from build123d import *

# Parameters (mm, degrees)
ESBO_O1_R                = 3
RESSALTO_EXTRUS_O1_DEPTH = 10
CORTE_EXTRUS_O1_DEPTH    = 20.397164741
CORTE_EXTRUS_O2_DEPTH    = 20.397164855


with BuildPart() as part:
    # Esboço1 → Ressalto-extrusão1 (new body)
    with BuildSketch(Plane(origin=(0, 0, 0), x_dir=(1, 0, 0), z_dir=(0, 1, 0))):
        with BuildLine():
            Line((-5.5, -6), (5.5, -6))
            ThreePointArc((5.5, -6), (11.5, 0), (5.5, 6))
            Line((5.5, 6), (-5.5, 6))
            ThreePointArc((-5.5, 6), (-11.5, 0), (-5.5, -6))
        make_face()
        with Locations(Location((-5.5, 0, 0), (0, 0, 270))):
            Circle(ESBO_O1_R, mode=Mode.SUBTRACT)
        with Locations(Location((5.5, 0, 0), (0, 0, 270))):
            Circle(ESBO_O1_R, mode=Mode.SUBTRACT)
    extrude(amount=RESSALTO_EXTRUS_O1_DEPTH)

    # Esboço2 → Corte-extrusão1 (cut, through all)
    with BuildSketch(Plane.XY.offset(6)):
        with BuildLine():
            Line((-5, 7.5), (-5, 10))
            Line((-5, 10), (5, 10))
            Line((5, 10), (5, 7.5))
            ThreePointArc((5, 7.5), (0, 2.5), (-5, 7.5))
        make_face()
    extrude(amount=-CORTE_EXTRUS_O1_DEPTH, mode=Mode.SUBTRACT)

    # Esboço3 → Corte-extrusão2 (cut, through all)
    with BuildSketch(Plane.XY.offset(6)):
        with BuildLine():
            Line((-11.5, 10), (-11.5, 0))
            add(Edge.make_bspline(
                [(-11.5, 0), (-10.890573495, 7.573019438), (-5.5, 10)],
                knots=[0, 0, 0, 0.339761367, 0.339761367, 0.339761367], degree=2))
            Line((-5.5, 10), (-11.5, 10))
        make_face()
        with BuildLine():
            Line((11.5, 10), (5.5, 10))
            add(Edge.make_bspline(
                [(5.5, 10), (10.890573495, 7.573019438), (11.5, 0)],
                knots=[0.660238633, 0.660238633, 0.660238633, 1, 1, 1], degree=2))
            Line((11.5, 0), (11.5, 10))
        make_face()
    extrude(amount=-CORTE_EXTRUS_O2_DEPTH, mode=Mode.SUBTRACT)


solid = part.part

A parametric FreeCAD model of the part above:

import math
import FreeCAD as App
import Part
import Sketcher
from FreeCAD import Vector

doc = App.newDocument("Part")
params = doc.addObject("Spreadsheet::Sheet", "Params")
for row, (alias, value) in enumerate([
    ("sketch1_diameter", "6 mm"),
    ("sketch1_radius", "6 mm"),
    ("sketch1_width", "11 mm"),
    ("pad1_length", "10 mm"),
    ("sketch2_radius", "5 mm"),
    ("sketch2_height", "2.5 mm"),
], start=1):
    params.set(f"A{row}", alias)
    params.set(f"B{row}", "=" + value)
    params.setAlias(f"B{row}", alias)

body = doc.addObject("PartDesign::Body", "Body")

sketch1 = body.newObject("Sketcher::SketchObject", "Sketch")
sketch1.AttachmentSupport = (doc.getObject("XZ_Plane"), [""])
sketch1.MapMode = "FlatFace"
sketch1.addGeometry(Part.LineSegment(Vector(-5.5, 6, 0), Vector(5.5, 6, 0)), False)
sketch1.addGeometry(Part.ArcOfCircle(Part.Circle(Vector(5.5, 0, 0), Vector(0, 0, 1), 6), math.radians(-90), math.radians(90)), False)
sketch1.addGeometry(Part.LineSegment(Vector(5.5, -6, 0), Vector(-5.5, -6, 0)), False)
sketch1.addGeometry(Part.ArcOfCircle(Part.Circle(Vector(-5.5, 0, 0), Vector(0, 0, 1), 6), math.radians(90), math.radians(270)), False)
sketch1.addGeometry(Part.Circle(Vector(-5.5, 0, 0), Vector(0, 0, 1), 3), False)
sketch1.addGeometry(Part.Circle(Vector(5.5, 0, 0), Vector(0, 0, 1), 3), False)
sketch1.addConstraint(Sketcher.Constraint("Tangent", 0, 2, 1, 2))
sketch1.addConstraint(Sketcher.Constraint("Tangent", 1, 1, 2, 1))
sketch1.addConstraint(Sketcher.Constraint("Tangent", 2, 2, 3, 2))
sketch1.addConstraint(Sketcher.Constraint("Tangent", 3, 1, 0, 1))
sketch1.addConstraint(Sketcher.Constraint("Horizontal", 0))
sketch1.addConstraint(Sketcher.Constraint("Horizontal", 2))
sketch1.addConstraint(Sketcher.Constraint("Coincident", 4, 3, 3, 3))
sketch1.addConstraint(Sketcher.Constraint("Coincident", 5, 3, 1, 3))
sketch1.addConstraint(Sketcher.Constraint("Equal", 4, 5))
sketch1.addConstraint(Sketcher.Constraint("Symmetric", 1, 3, 3, 3, -1, 1))
sketch1.addConstraint(Sketcher.Constraint("Diameter", 4, 6.0))
sketch1.addConstraint(Sketcher.Constraint("Radius", 1, 6.0))
sketch1.addConstraint(Sketcher.Constraint("DistanceX", 0, 1, 0, 2, 11.0))
sketch1.setExpression("Constraints[10]", "Params.sketch1_diameter")
sketch1.setExpression("Constraints[11]", "Params.sketch1_radius")
sketch1.setExpression("Constraints[12]", "Params.sketch1_width")
pad1 = body.newObject("PartDesign::Pad", "Pad")
pad1.Profile = sketch1
pad1.setExpression("Length", "Params.pad1_length")
pad1.Reversed = True

sketch2 = body.newObject("Sketcher::SketchObject", "Sketch001")
sketch2.AttachmentSupport = (doc.getObject("XY_Plane"), [""])
sketch2.MapMode = "FlatFace"
sketch2.AttachmentOffset = App.Placement(Vector(0, 0, 6), App.Rotation())
sketch2.addGeometry(Part.LineSegment(Vector(-5, 10, 0), Vector(-5, 7.5, 0)), False)
sketch2.addGeometry(Part.ArcOfCircle(Part.Circle(Vector(0, 7.5, 0), Vector(0, 0, 1), 5), math.radians(180), math.radians(360)), False)
sketch2.addGeometry(Part.LineSegment(Vector(5, 7.5, 0), Vector(5, 10, 0)), False)
sketch2.addGeometry(Part.LineSegment(Vector(5, 10, 0), Vector(-5, 10, 0)), False)
sketch2.addConstraint(Sketcher.Constraint("Tangent", 0, 2, 1, 1))
sketch2.addConstraint(Sketcher.Constraint("Tangent", 1, 2, 2, 1))
sketch2.addConstraint(Sketcher.Constraint("Coincident", 2, 2, 3, 1))
sketch2.addConstraint(Sketcher.Constraint("Coincident", 3, 2, 0, 1))
sketch2.addConstraint(Sketcher.Constraint("Vertical", 0))
sketch2.addConstraint(Sketcher.Constraint("Vertical", 2))
sketch2.addConstraint(Sketcher.Constraint("Horizontal", 3))
sketch2.addConstraint(Sketcher.Constraint("PointOnObject", 1, 3, -2))
sketch2.addConstraint(Sketcher.Constraint("Radius", 1, 5.0))
sketch2.addConstraint(Sketcher.Constraint("DistanceY", 0, 2, 0, 1, 2.5))
sketch2.addConstraint(Sketcher.Constraint("DistanceY", -1, 1, 2, 2, 10.0))
sketch2.setExpression("Constraints[8]", "Params.sketch2_radius")
sketch2.setExpression("Constraints[9]", "Params.sketch2_height")
pocket1 = body.newObject("PartDesign::Pocket", "Pocket")
pocket1.Profile = sketch2
pocket1.Type = "ThroughAll"

sketch3 = body.newObject("Sketcher::SketchObject", "Sketch002")
sketch3.AttachmentSupport = (doc.getObject("XY_Plane"), [""])
sketch3.MapMode = "FlatFace"
sketch3.AttachmentOffset = App.Placement(Vector(0, 0, 6), App.Rotation())
sketch3.addGeometry(Part.LineSegment(Vector(-11.5, 10, 0), Vector(-11.5, 0, 0)), False)
sketch3.addGeometry(Part.BSplineCurve([Vector(-11.5, 0, 0), Vector(-10.890573, 7.573019, 0), Vector(-5.5, 10, 0)], [3, 3], [0, 0.339761367], False, 2, [1, 1, 1], False), False)
sketch3.addGeometry(Part.LineSegment(Vector(-5.5, 10, 0), Vector(-11.5, 10, 0)), False)
sketch3.addGeometry(Part.LineSegment(Vector(11.5, 10, 0), Vector(5.5, 10, 0)), False)
sketch3.addGeometry(Part.BSplineCurve([Vector(5.5, 10, 0), Vector(10.890573, 7.573019, 0), Vector(11.5, 0, 0)], [3, 3], [0.660238633, 1], False, 2, [1, 1, 1], False), False)
sketch3.addGeometry(Part.LineSegment(Vector(11.5, 0, 0), Vector(11.5, 10, 0)), False)
sketch3.addConstraint(Sketcher.Constraint("Block", 1))
sketch3.addConstraint(Sketcher.Constraint("Block", 4))
sketch3.addConstraint(Sketcher.Constraint("Coincident", 0, 2, 1, 1))
sketch3.addConstraint(Sketcher.Constraint("Coincident", 1, 2, 2, 1))
sketch3.addConstraint(Sketcher.Constraint("Coincident", 2, 2, 0, 1))
sketch3.addConstraint(Sketcher.Constraint("Coincident", 3, 2, 4, 1))
sketch3.addConstraint(Sketcher.Constraint("Coincident", 4, 2, 5, 1))
sketch3.addConstraint(Sketcher.Constraint("Coincident", 5, 2, 3, 1))
sketch3.addConstraint(Sketcher.Constraint("Vertical", 0))
sketch3.addConstraint(Sketcher.Constraint("Horizontal", 2))
sketch3.addConstraint(Sketcher.Constraint("Horizontal", 3))
sketch3.addConstraint(Sketcher.Constraint("Vertical", 5))
pocket2 = body.newObject("PartDesign::Pocket", "Pocket001")
pocket2.Profile = sketch3
pocket2.Type = "ThroughAll"

doc.recompute()
